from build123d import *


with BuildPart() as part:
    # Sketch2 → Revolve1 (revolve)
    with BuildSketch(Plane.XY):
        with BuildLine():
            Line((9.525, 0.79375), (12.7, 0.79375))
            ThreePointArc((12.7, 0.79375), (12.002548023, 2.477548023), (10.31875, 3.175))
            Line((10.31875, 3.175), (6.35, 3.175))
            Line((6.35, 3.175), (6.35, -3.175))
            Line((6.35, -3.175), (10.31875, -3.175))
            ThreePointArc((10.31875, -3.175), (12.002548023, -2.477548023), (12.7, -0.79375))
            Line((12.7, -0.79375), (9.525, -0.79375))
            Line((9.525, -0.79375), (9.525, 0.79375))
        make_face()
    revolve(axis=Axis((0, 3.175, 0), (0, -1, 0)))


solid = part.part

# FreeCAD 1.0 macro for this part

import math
import FreeCAD as App
import Part
import Sketcher

V = App.Vector
Q = App.Units.Quantity

doc = App.newDocument("Part")
body = doc.addObject("PartDesign::Body", "Body")

sketch1 = body.newObject("Sketcher::SketchObject", "Sketch")
sketch1.AttachmentSupport = (doc.getObject("XY_Plane"), [""])
sketch1.MapMode = "FlatFace"
sketch1.addGeometry(Part.LineSegment(V(9.525, 0.79375, 0), V(12.7, 0.79375, 0)), False)
sketch1.addGeometry(Part.ArcOfCircle(Part.Circle(V(10.31875, 0.79375, 0), V(0, 0, 1), 2.38125), math.radians(0), math.radians(90)), False)
sketch1.addGeometry(Part.LineSegment(V(10.31875, 3.175, 0), V(6.35, 3.175, 0)), False)
sketch1.addGeometry(Part.LineSegment(V(6.35, 3.175, 0), V(6.35, -3.175, 0)), False)
sketch1.addGeometry(Part.LineSegment(V(6.35, -3.175, 0), V(10.31875, -3.175, 0)), False)
sketch1.addGeometry(Part.ArcOfCircle(Part.Circle(V(10.31875, -0.79375, 0), V(0, 0, 1), 2.38125), math.radians(-90), math.radians(0)), False)
sketch1.addGeometry(Part.LineSegment(V(12.7, -0.79375, 0), V(9.525, -0.79375, 0)), False)
sketch1.addGeometry(Part.LineSegment(V(9.525, -0.79375, 0), V(9.525, 0.79375, 0)), False)
sketch1.addConstraint(Sketcher.Constraint("Coincident", 0, 2, 1, 1))
sketch1.addConstraint(Sketcher.Constraint("Tangent", 1, 2, 2, 1))
sketch1.addConstraint(Sketcher.Constraint("Coincident", 2, 2, 3, 1))
sketch1.addConstraint(Sketcher.Constraint("Coincident", 3, 2, 4, 1))
sketch1.addConstraint(Sketcher.Constraint("Tangent", 4, 2, 5, 1))
sketch1.addConstraint(Sketcher.Constraint("Coincident", 5, 2, 6, 1))
sketch1.addConstraint(Sketcher.Constraint("Coincident", 6, 2, 7, 1))
sketch1.addConstraint(Sketcher.Constraint("Coincident", 7, 2, 0, 1))
sketch1.addConstraint(Sketcher.Constraint("Horizontal", 0))
sketch1.addConstraint(Sketcher.Constraint("Horizontal", 2))
sketch1.addConstraint(Sketcher.Constraint("Vertical", 3))
sketch1.addConstraint(Sketcher.Constraint("Horizontal", 4))
sketch1.addConstraint(Sketcher.Constraint("Horizontal", 6))
sketch1.addConstraint(Sketcher.Constraint("Vertical", 7))
sketch1.addConstraint(Sketcher.Constraint("Equal", 1, 5))
sketch1.addConstraint(Sketcher.Constraint("Symmetric", 1, 3, 5, 3, -1))
sketch1.addConstraint(Sketcher.Constraint("Horizontal", 1, 3, 0, 2))
sketch1.addConstraint(Sketcher.Constraint("Radius", 1, Q("0.09375 in")))
sketch1.addConstraint(Sketcher.Constraint("DistanceY", 3, 2, 3, 1, Q("0.25 in")))
sketch1.addConstraint(Sketcher.Constraint("DistanceX", -1, 1, 0, 2, Q("0.5 in")))
sketch1.addConstraint(Sketcher.Constraint("DistanceX", 0, 1, 0, 2, Q("0.125 in")))
sketch1.addConstraint(Sketcher.Constraint("DistanceX", 2, 2, 2, 1, Q("0.15625 in")))
sketch1.addConstraint(Sketcher.Constraint("DistanceY", 7, 1, 7, 2, Q("0.0625 in")))
revolution = body.newObject("PartDesign::Revolution", "Revolution")
revolution.Profile = sketch1
revolution.ReferenceAxis = (sketch1, ["V_Axis"])
revolution.Angle = 360

doc.recompute()
